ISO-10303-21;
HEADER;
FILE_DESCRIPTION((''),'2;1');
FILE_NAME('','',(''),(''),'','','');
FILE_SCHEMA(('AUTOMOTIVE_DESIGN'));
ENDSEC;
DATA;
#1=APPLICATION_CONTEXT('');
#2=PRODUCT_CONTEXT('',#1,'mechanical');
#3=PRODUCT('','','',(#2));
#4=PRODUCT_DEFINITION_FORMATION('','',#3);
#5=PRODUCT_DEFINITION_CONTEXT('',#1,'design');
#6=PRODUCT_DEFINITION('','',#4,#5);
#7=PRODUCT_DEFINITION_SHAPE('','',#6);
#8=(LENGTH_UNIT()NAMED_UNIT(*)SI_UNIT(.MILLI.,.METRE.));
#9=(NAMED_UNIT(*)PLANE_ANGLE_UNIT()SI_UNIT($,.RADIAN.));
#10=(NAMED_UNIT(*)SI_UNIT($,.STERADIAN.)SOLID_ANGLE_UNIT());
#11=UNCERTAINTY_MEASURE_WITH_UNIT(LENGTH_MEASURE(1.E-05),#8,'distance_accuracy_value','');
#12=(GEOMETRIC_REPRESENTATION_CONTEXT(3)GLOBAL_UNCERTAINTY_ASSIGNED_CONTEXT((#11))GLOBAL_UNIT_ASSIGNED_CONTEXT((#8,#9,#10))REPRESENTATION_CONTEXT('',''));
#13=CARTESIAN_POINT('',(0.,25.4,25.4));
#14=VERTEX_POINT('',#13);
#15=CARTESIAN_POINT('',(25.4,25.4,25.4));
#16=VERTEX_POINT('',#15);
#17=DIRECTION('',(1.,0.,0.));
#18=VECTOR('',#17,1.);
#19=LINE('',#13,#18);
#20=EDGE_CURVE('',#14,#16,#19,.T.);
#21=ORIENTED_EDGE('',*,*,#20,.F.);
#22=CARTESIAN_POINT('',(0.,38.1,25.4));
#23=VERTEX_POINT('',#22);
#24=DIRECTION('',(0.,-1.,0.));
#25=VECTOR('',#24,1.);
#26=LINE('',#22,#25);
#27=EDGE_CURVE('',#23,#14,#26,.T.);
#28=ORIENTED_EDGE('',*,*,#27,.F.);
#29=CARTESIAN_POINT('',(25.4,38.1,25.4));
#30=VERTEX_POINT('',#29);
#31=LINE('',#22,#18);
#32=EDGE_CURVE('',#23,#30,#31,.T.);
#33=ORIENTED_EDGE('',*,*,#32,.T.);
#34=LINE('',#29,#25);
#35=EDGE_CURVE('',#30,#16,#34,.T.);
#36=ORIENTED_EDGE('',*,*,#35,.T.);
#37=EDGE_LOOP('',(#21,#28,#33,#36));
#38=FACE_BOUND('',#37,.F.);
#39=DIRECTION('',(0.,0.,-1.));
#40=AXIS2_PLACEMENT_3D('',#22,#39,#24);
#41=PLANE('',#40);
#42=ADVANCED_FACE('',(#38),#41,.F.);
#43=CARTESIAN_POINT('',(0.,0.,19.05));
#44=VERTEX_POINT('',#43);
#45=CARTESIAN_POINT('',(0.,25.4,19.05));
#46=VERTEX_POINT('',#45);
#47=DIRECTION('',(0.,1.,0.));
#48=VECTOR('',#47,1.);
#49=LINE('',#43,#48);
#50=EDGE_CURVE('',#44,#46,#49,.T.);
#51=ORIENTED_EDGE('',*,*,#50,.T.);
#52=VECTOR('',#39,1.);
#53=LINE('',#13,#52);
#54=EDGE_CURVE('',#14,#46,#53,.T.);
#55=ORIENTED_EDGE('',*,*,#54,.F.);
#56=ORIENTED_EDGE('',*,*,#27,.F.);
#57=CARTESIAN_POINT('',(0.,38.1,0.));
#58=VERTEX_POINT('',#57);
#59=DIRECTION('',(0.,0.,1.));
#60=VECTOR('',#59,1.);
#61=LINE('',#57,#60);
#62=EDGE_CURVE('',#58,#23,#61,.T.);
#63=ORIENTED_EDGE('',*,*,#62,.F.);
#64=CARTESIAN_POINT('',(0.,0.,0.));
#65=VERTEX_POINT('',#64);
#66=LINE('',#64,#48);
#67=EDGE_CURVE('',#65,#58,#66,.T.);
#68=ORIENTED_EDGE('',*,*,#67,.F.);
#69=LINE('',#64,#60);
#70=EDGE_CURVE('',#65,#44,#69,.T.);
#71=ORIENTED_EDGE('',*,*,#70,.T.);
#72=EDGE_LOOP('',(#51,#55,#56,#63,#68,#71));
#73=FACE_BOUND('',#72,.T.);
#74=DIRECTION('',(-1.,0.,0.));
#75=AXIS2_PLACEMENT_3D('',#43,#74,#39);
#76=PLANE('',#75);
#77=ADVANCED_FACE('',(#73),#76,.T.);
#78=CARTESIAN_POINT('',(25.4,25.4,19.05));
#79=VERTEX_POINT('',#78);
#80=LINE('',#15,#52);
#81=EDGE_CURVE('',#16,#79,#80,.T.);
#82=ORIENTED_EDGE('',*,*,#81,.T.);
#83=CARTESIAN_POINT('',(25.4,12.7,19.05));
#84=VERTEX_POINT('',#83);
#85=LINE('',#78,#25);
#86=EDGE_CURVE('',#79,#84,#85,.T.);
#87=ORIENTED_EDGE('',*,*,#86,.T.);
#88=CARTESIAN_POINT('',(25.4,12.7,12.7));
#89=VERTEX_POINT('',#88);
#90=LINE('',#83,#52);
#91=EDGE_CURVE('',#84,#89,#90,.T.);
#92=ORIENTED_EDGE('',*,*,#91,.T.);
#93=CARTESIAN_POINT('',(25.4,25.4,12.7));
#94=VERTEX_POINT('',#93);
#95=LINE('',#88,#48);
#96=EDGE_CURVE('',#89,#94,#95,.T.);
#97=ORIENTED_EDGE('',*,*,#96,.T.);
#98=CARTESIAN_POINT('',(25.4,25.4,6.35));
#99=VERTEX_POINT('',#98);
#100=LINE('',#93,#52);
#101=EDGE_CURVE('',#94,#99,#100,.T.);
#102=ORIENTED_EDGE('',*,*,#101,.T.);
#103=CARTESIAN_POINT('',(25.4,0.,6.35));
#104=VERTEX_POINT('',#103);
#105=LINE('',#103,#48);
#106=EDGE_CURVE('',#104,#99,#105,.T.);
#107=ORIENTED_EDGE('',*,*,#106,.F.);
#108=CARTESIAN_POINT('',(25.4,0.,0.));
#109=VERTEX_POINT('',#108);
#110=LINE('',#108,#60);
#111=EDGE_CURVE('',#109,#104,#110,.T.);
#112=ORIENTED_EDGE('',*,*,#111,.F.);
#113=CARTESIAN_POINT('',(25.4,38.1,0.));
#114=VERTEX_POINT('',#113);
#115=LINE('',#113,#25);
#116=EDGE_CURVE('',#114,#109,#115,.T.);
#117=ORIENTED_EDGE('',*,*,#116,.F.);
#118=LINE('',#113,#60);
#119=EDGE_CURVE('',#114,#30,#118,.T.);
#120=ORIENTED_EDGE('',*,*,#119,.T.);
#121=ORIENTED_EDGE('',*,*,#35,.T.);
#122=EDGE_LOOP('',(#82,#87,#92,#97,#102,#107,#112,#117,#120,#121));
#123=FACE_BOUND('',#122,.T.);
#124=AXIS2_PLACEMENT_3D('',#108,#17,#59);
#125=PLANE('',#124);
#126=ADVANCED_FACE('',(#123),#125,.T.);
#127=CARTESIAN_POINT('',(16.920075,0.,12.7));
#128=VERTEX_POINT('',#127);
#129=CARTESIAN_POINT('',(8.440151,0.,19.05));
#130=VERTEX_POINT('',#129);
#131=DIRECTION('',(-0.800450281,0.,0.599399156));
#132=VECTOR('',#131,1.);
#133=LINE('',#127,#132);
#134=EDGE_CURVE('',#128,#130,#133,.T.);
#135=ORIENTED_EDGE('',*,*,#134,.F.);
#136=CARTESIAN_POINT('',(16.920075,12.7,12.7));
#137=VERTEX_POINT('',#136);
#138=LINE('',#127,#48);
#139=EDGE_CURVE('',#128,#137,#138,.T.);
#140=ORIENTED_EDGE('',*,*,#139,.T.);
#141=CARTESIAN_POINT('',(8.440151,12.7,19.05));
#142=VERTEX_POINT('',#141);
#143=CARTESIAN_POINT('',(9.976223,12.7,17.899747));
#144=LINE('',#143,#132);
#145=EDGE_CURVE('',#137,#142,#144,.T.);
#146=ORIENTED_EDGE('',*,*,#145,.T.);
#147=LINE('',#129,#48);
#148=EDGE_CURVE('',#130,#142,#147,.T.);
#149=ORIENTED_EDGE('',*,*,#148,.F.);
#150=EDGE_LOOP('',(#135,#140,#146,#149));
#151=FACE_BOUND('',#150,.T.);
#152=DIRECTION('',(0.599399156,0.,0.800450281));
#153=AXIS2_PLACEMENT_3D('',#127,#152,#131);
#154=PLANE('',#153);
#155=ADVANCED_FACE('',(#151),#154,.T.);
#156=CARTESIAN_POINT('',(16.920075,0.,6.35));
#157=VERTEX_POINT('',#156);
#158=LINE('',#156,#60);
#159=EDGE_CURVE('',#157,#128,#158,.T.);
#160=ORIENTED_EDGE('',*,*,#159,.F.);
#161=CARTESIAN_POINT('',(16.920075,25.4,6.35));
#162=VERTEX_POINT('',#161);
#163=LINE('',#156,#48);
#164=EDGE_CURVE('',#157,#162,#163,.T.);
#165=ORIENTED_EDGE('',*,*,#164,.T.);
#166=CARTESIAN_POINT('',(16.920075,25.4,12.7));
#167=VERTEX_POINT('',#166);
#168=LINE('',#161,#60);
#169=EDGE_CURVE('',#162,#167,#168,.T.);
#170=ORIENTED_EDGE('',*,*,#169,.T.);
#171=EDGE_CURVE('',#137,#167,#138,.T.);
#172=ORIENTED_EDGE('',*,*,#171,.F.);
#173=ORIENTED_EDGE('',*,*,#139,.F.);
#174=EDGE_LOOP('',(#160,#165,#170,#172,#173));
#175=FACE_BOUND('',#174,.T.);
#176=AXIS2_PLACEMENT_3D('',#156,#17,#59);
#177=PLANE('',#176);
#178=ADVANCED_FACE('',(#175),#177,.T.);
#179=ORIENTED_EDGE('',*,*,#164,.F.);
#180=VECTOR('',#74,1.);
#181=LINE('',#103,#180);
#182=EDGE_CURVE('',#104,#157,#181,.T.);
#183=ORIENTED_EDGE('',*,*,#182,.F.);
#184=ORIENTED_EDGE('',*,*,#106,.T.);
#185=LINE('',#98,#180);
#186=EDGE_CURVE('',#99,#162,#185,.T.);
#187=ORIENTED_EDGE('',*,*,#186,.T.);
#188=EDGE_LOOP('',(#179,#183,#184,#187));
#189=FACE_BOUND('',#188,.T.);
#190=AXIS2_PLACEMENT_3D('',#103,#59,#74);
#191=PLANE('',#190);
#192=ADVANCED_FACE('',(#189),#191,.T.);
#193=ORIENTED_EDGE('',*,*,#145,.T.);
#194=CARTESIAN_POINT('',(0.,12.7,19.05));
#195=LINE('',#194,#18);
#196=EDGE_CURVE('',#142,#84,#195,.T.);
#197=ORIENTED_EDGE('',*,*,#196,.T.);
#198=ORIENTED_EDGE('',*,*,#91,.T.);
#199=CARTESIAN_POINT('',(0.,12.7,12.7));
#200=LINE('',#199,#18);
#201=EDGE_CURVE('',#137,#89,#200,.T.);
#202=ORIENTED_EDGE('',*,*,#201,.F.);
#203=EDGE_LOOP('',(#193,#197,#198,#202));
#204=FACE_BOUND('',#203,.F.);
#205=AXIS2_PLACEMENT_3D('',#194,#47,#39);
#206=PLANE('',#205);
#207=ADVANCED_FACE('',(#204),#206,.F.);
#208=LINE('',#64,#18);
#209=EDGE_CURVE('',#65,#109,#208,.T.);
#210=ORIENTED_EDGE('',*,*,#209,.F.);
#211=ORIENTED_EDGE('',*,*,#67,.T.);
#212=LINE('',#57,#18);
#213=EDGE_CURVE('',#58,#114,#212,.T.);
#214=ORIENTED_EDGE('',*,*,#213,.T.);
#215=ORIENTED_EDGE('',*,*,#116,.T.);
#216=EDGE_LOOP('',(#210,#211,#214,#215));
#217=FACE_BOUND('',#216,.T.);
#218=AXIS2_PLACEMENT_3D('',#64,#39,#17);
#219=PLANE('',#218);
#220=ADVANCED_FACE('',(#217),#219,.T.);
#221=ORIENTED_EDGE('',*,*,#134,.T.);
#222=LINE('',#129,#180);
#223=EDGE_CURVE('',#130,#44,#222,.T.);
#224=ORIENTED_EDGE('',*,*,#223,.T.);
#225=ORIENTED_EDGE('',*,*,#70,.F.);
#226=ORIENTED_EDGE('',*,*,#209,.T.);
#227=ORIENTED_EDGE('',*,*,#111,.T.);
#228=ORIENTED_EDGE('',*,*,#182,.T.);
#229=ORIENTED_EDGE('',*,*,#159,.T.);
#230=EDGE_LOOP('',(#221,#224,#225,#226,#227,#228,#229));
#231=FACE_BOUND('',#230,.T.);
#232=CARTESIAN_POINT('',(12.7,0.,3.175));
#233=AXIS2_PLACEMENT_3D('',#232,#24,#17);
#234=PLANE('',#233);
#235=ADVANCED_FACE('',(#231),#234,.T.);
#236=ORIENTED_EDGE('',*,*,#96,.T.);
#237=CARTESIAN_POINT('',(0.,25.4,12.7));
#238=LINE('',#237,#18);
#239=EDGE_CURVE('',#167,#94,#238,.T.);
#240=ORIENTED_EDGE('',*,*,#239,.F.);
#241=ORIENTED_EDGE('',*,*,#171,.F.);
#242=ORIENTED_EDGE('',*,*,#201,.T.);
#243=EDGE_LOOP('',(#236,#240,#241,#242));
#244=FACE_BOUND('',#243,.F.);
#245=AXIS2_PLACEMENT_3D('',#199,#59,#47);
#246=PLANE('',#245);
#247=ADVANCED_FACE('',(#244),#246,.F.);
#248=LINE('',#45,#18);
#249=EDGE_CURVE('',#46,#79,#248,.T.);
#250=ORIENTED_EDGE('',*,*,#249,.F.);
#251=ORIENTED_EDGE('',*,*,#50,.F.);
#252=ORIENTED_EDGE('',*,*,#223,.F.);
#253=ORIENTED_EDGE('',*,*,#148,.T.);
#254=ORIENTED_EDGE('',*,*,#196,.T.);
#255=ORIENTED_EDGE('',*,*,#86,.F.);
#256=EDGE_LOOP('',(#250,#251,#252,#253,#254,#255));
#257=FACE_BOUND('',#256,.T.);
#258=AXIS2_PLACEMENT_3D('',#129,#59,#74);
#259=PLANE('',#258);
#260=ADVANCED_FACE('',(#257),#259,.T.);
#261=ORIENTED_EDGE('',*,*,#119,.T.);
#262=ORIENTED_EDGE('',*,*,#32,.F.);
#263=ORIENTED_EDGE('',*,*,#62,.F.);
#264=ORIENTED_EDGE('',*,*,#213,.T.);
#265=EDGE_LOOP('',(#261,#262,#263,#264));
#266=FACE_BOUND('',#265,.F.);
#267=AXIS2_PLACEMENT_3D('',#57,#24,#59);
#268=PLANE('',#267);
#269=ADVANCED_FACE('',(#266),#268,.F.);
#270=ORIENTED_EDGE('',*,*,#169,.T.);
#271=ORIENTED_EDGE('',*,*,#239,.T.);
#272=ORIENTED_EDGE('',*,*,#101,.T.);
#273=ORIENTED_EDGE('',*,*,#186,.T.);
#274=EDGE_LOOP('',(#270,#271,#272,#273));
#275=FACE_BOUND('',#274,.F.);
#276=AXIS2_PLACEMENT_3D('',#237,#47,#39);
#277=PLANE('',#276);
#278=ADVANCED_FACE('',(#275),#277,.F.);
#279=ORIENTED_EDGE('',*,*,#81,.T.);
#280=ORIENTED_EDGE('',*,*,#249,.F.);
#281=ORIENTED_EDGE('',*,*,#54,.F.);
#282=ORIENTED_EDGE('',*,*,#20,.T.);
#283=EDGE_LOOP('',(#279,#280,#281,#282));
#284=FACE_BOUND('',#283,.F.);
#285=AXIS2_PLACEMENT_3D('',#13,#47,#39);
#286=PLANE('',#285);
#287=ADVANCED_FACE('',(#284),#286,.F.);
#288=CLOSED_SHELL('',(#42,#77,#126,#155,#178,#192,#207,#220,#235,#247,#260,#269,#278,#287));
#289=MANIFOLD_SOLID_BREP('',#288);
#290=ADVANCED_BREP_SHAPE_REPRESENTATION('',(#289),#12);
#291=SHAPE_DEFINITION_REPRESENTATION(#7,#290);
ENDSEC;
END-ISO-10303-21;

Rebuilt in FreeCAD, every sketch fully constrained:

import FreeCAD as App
import Part
import Sketcher
Q = App.Units.Quantity

doc = App.newDocument("Part")
body = doc.addObject("PartDesign::Body", "Body")

sketch1 = body.newObject("Sketcher::SketchObject", "Sketch")
sketch1.AttachmentSupport = (doc.getObject("XZ_Plane"), [""])
sketch1.MapMode = "FlatFace"
sketch1.addGeometry(Part.LineSegment(App.Vector(0, 0, 0), App.Vector(25, 0, 0)), False)
sketch1.addGeometry(Part.LineSegment(App.Vector(25, 0, 0), App.Vector(25, 6, 0)), False)
sketch1.addGeometry(Part.LineSegment(App.Vector(25, 6, 0), App.Vector(17, 6, 0)), False)
sketch1.addGeometry(Part.LineSegment(App.Vector(17, 6, 0), App.Vector(17, 13, 0)), False)
sketch1.addGeometry(Part.LineSegment(App.Vector(17, 13, 0), App.Vector(8, 19, 0)), False)
sketch1.addGeometry(Part.LineSegment(App.Vector(8, 19, 0), App.Vector(0, 19, 0)), False)
sketch1.addGeometry(Part.LineSegment(App.Vector(0, 19, 0), App.Vector(0, 0, 0)), False)
sketch1.addConstraint(Sketcher.Constraint("Coincident", 0, 2, 1, 1))
sketch1.addConstraint(Sketcher.Constraint("Coincident", 1, 2, 2, 1))
sketch1.addConstraint(Sketcher.Constraint("Coincident", 2, 2, 3, 1))
sketch1.addConstraint(Sketcher.Constraint("Coincident", 3, 2, 4, 1))
sketch1.addConstraint(Sketcher.Constraint("Coincident", 4, 2, 5, 1))
sketch1.addConstraint(Sketcher.Constraint("Coincident", 5, 2, 6, 1))
sketch1.addConstraint(Sketcher.Constraint("Coincident", 6, 2, 0, 1))
sketch1.addConstraint(Sketcher.Constraint("Horizontal", 0))
sketch1.addConstraint(Sketcher.Constraint("Vertical", 1))
sketch1.addConstraint(Sketcher.Constraint("Horizontal", 2))
sketch1.addConstraint(Sketcher.Constraint("Vertical", 3))
sketch1.addConstraint(Sketcher.Constraint("Horizontal", 5))
sketch1.addConstraint(Sketcher.Constraint("Vertical", 6))
sketch1.addConstraint(Sketcher.Constraint("Coincident", 6, 2, -1, 1))
sketch1.addConstraint(Sketcher.Constraint("Equal", 1, 3))
sketch1.addConstraint(Sketcher.Constraint("DistanceX", 0, 1, 0, 2, Q("1 in")))
sketch1.addConstraint(Sketcher.Constraint("DistanceY", 1, 1, 1, 2, Q("0.25 in")))
sketch1.addConstraint(Sketcher.Constraint("DistanceY", 6, 2, 6, 1, Q("0.75 in")))
sketch1.addConstraint(Sketcher.Constraint("DistanceX", 5, 2, 5, 1, 8.440151))
sketch1.addConstraint(Sketcher.Constraint("DistanceX", 2, 2, 2, 1, 8.479925))
pad1 = body.newObject("PartDesign::Pad", "Pad")
pad1.Profile = sketch1
pad1.Length = Q("1 in")
pad1.Reversed = True

sketch2 = body.newObject("Sketcher::SketchObject", "Sketch001")
sketch2.AttachmentSupport = (doc.getObject("YZ_Plane"), [""])
sketch2.MapMode = "FlatFace"
sketch2.addGeometry(Part.LineSegment(App.Vector(0, 6, 0), App.Vector(0, 0, 0)), False)
sketch2.addGeometry(Part.LineSegment(App.Vector(0, 0, 0), App.Vector(38, 0, 0)), False)
sketch2.addGeometry(Part.LineSegment(App.Vector(38, 0, 0), App.Vector(38, 25, 0)), False)
sketch2.addGeometry(Part.LineSegment(App.Vector(38, 25, 0), App.Vector(25, 25, 0)), False)
sketch2.addGeometry(Part.LineSegment(App.Vector(25, 25, 0), App.Vector(25, 19, 0)), False)
sketch2.addGeometry(Part.LineSegment(App.Vector(25, 19, 0), App.Vector(13, 19, 0)), False)
sketch2.addGeometry(Part.LineSegment(App.Vector(13, 19, 0), App.Vector(13, 13, 0)), False)
sketch2.addGeometry(Part.LineSegment(App.Vector(13, 13, 0), App.Vector(25, 13, 0)), False)
sketch2.addGeometry(Part.LineSegment(App.Vector(25, 13, 0), App.Vector(25, 6, 0)), False)
sketch2.addGeometry(Part.LineSegment(App.Vector(25, 6, 0), App.Vector(0, 6, 0)), False)
sketch2.addConstraint(Sketcher.Constraint("Coincident", 0, 2, 1, 1))
sketch2.addConstraint(Sketcher.Constraint("Coincident", 1, 2, 2, 1))
sketch2.addConstraint(Sketcher.Constraint("Coincident", 2, 2, 3, 1))
sketch2.addConstraint(Sketcher.Constraint("Coincident", 3, 2, 4, 1))
sketch2.addConstraint(Sketcher.Constraint("Coincident", 4, 2, 5, 1))
sketch2.addConstraint(Sketcher.Constraint("Coincident", 5, 2, 6, 1))
sketch2.addConstraint(Sketcher.Constraint("Coincident", 6, 2, 7, 1))
sketch2.addConstraint(Sketcher.Constraint("Coincident", 7, 2, 8, 1))
sketch2.addConstraint(Sketcher.Constraint("Coincident", 8, 2, 9, 1))
sketch2.addConstraint(Sketcher.Constraint("Coincident", 9, 2, 0, 1))
sketch2.addConstraint(Sketcher.Constraint("Vertical", 0))
sketch2.addConstraint(Sketcher.Constraint("Horizontal", 1))
sketch2.addConstraint(Sketcher.Constraint("Vertical", 2))
sketch2.addConstraint(Sketcher.Constraint("Horizontal", 3))
sketch2.addConstraint(Sketcher.Constraint("Vertical", 4))
sketch2.addConstraint(Sketcher.Constraint("Horizontal", 5))
sketch2.addConstraint(Sketcher.Constraint("Vertical", 6))
sketch2.addConstraint(Sketcher.Constraint("Horizontal", 7))
sketch2.addConstraint(Sketcher.Constraint("Vertical", 8))
sketch2.addConstraint(Sketcher.Constraint("Horizontal", 9))
sketch2.addConstraint(Sketcher.Constraint("Coincident", 0, 2, -1, 1))
sketch2.addConstraint(Sketcher.Constraint("Vertical", 4, 2, 7, 2))
sketch2.addConstraint(Sketcher.Constraint("Equal", 3, 5))
sketch2.addConstraint(Sketcher.Constraint("Equal", 9, 2))
sketch2.addConstraint(Sketcher.Constraint("Equal", 0, 4))
sketch2.addConstraint(Sketcher.Constraint("Equal", 4, 6))
sketch2.addConstraint(Sketcher.Constraint("Equal", 6, 8))
sketch2.addConstraint(Sketcher.Constraint("DistanceX", 9, 2, 9, 1, Q("1 in")))
sketch2.addConstraint(Sketcher.Constraint("DistanceX", 1, 1, 1, 2, Q("1.5 in")))
pad2 = body.newObject("PartDesign::Pad", "Pad001")
pad2.Profile = sketch2
pad2.Length = Q("1 in")

doc.recompute()
